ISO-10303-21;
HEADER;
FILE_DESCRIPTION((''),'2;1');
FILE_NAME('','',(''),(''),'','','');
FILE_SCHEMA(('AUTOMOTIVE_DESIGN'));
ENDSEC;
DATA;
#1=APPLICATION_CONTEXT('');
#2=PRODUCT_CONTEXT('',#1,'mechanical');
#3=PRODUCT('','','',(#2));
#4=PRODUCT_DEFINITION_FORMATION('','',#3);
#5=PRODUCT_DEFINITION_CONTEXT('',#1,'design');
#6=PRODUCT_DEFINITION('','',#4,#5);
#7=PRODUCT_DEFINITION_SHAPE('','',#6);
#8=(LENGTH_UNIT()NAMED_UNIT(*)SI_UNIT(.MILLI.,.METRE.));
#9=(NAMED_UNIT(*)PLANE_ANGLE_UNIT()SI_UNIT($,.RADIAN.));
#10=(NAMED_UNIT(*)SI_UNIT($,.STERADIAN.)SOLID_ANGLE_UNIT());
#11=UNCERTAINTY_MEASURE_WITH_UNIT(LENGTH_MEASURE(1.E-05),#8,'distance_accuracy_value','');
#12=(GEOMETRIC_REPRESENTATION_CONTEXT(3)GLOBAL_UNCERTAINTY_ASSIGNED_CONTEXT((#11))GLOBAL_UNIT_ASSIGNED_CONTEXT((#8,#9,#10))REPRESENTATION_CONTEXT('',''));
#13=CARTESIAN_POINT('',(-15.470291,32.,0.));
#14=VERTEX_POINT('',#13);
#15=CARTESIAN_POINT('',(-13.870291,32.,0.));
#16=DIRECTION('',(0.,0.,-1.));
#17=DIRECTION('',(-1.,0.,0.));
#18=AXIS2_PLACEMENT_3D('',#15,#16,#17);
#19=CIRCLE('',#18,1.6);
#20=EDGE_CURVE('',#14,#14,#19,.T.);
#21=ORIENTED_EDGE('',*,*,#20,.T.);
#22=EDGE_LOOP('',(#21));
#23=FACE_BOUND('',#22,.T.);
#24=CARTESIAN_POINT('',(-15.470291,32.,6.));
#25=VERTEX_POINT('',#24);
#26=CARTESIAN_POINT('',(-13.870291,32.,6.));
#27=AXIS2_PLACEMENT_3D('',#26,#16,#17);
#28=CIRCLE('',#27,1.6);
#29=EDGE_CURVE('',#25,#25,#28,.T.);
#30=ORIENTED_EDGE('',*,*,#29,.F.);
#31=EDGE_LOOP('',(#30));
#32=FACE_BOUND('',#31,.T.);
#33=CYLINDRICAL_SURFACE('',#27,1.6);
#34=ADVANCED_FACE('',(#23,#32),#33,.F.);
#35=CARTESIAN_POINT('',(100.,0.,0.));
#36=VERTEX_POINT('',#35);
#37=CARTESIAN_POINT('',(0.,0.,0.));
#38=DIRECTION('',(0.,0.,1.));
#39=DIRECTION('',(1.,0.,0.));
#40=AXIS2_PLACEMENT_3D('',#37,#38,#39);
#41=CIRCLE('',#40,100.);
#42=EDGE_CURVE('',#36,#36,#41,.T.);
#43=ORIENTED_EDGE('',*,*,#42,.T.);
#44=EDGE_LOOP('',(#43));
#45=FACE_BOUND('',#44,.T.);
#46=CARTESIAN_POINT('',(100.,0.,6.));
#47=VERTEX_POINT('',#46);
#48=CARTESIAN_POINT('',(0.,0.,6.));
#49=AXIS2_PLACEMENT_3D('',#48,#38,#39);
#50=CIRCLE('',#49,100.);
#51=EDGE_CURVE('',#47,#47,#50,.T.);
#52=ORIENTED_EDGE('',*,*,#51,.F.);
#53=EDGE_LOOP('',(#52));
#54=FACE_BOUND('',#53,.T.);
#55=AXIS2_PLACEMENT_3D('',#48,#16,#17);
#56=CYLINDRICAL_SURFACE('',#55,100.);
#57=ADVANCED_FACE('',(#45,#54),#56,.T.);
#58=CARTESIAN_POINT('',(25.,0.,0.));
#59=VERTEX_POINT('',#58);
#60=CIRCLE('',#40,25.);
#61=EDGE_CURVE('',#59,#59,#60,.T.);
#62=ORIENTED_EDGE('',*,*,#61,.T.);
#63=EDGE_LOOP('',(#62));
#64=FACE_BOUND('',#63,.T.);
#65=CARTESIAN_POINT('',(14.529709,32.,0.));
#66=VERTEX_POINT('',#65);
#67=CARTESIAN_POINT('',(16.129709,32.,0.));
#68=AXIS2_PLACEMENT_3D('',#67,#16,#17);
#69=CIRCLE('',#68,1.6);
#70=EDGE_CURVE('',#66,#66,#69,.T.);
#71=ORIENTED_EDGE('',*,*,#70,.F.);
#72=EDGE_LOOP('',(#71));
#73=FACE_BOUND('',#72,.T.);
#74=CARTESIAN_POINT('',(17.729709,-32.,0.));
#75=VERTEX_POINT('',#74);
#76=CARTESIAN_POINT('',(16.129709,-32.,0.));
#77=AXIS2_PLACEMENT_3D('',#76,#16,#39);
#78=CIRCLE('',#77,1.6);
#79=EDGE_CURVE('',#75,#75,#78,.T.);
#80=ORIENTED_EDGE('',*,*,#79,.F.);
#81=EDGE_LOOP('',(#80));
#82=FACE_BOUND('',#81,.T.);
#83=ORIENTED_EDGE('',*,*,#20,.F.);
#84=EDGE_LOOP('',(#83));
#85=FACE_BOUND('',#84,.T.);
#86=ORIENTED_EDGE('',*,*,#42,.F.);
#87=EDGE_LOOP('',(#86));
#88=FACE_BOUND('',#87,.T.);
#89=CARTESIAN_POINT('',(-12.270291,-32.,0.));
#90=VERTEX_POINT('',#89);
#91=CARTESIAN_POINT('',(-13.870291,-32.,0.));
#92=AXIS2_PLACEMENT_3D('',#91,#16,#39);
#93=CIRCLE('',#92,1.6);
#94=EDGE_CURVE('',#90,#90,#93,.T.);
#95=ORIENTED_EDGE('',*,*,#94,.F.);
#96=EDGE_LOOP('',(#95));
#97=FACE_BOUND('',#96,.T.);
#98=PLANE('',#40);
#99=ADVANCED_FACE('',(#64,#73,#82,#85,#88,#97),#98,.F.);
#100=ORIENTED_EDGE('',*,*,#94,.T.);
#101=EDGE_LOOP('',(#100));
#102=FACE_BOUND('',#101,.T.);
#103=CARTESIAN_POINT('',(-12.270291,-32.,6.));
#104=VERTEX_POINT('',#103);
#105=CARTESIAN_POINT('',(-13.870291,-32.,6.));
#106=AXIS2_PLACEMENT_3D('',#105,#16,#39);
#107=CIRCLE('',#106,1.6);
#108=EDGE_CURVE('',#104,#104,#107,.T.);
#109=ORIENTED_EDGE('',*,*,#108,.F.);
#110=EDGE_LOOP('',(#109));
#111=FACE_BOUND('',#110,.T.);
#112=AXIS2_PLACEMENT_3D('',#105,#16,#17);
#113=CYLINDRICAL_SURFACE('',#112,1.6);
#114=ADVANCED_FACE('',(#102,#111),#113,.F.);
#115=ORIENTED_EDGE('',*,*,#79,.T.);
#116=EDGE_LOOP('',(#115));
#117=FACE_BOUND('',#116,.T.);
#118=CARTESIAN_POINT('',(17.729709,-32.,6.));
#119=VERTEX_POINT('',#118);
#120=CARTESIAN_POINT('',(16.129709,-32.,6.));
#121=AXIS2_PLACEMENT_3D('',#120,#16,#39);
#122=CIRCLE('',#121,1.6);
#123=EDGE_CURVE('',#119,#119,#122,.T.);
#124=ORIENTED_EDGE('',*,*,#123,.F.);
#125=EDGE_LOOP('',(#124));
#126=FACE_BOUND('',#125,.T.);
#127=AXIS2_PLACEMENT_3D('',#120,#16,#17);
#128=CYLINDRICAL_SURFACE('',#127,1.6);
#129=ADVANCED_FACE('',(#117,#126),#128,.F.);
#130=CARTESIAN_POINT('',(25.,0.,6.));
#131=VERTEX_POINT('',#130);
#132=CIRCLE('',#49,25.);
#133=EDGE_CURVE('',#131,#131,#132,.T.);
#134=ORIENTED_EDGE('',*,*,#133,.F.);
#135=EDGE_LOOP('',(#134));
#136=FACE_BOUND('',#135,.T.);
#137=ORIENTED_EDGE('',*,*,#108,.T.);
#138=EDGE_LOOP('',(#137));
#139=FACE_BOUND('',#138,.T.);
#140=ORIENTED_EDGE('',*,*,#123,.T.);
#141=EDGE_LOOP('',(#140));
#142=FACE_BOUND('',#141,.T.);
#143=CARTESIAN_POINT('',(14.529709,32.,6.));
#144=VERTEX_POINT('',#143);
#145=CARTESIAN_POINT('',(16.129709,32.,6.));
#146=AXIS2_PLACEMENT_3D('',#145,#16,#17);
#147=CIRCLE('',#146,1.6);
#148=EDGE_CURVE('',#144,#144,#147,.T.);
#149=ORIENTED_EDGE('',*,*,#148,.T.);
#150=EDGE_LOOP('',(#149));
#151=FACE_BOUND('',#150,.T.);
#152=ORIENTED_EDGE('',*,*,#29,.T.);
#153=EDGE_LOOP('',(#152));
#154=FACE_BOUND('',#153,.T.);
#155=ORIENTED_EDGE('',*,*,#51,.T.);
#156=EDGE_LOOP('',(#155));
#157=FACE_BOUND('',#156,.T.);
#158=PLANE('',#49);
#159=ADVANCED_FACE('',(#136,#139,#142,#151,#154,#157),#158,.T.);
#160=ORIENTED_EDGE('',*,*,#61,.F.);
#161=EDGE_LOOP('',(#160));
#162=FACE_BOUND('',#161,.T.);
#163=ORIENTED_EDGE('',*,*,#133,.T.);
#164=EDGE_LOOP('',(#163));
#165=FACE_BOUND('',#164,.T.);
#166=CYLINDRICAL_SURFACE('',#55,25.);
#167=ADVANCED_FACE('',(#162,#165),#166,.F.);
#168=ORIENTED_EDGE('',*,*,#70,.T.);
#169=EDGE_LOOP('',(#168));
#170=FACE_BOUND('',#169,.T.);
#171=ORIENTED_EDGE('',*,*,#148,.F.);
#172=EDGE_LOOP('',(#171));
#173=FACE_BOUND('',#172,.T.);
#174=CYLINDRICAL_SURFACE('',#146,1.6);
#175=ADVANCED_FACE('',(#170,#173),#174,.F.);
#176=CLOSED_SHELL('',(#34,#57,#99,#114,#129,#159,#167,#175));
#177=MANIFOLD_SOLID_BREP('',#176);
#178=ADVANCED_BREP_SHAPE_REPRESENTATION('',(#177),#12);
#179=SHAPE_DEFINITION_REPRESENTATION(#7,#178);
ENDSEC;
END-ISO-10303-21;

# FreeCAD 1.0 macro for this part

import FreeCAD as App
import Part
import Sketcher

V = App.Vector
Q = App.Units.Quantity

doc = App.newDocument("Part")
body = doc.addObject("PartDesign::Body", "Body")

# Sketch on XY plane
sketch1 = doc.addObject("Sketcher::SketchObject", "Sketch")
body.addObject(sketch1)
sketch1.AttachmentSupport = (doc.XY_Plane, [""])
sketch1.MapMode = "FlatFace"
sketch1.addGeometry(Part.Circle(V(0, 0, 0), V(0, 0, 1), 100), False)
sketch1.addGeometry(Part.Circle(V(0, 0, 0), V(0, 0, 1), 25), False)
sketch1.addConstraint(Sketcher.Constraint("Coincident", 0, 3, -1, 1))
sketch1.addConstraint(Sketcher.Constraint("Coincident", 1, 3, -1, 1))
sketch1.addConstraint(Sketcher.Constraint("Diameter", 0, Q("200 mm")))
sketch1.addConstraint(Sketcher.Constraint("Diameter", 1, Q("50 mm")))
pad1 = doc.addObject("PartDesign::Pad", "Pad")
body.addObject(pad1)
pad1.Profile = sketch1
pad1.Length = 6

# Sketch on XY plane
sketch2 = doc.addObject("Sketcher::SketchObject", "Sketch001")
body.addObject(sketch2)
sketch2.AttachmentSupport = (doc.XY_Plane, [""])
sketch2.MapMode = "FlatFace"
sketch2.addGeometry(Part.Circle(V(16.1, 32, 0), V(0, 0, 1), 1.6), False)
sketch2.addGeometry(Part.Circle(V(-13.9, 32, 0), V(0, 0, 1), 1.6), False)
sketch2.addGeometry(Part.Circle(V(-13.9, -32, 0), V(0, 0, 1), 1.6), False)
sketch2.addGeometry(Part.Circle(V(16.1, -32, 0), V(0, 0, 1), 1.6), False)
sketch2.addConstraint(Sketcher.Constraint("Equal", 0, 1))
sketch2.addConstraint(Sketcher.Constraint("Equal", 1, 2))
sketch2.addConstraint(Sketcher.Constraint("Equal", 2, 3))
sketch2.addConstraint(Sketcher.Constraint("Symmetric", 1, 3, 2, 3, -1))
sketch2.addConstraint(Sketcher.Constraint("Symmetric", 0, 3, 3, 3, -1))
sketch2.addConstraint(Sketcher.Constraint("Horizontal", 0, 3, 1, 3))
sketch2.addConstraint(Sketcher.Constraint("Diameter", 0, Q("3.2 mm")))
sketch2.addConstraint(Sketcher.Constraint("DistanceY", -1, 1, 0, 3, Q("32 mm")))
sketch2.addConstraint(Sketcher.Constraint("DistanceX", 1, 3, 0, 3, Q("30 mm")))
sketch2.addConstraint(Sketcher.Constraint("DistanceX", -1, 1, 0, 3, Q("16.129709 mm")))
pocket1 = doc.addObject("PartDesign::Pocket", "Pocket")
body.addObject(pocket1)
pocket1.Profile = sketch2
pocket1.Type = "ThroughAll"
pocket1.Reversed = True

doc.recompute()
